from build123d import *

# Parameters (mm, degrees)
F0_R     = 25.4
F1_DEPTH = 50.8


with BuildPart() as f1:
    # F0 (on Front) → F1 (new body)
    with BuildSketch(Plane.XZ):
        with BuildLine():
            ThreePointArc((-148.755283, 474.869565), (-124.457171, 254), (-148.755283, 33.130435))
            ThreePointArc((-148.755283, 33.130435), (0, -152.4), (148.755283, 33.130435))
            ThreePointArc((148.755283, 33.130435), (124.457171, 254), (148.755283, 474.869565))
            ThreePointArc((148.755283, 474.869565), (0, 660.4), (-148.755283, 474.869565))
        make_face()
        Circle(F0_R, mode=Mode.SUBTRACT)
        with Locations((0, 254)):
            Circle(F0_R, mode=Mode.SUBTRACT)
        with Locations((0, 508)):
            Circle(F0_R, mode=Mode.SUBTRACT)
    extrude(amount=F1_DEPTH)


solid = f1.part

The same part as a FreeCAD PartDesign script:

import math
import FreeCAD as App
import Part
import Sketcher
from FreeCAD import Vector
Q = App.Units.Quantity

doc = App.newDocument("Part")
body = doc.addObject("PartDesign::Body", "Body")

sketch1 = body.newObject("Sketcher::SketchObject", "Sketch")
sketch1.AttachmentSupport = (doc.getObject("XZ_Plane"), [""])
sketch1.MapMode = "FlatFace"
sketch1.addGeometry(Part.ArcOfCircle(Part.Circle(Vector(-1140.457159, 254, 0), Vector(0, 0, 1), 1015.999988), math.radians(-12.555858), math.radians(12.555858)), False)
sketch1.addGeometry(Part.ArcOfCircle(Part.Circle(Vector(0, 0, 0), Vector(0, 0, 1), 152.4), math.radians(167.444142), math.radians(372.555858)), False)
sketch1.addGeometry(Part.ArcOfCircle(Part.Circle(Vector(1140.457159, 254, 0), Vector(0, 0, 1), 1015.999988), math.radians(167.444142), math.radians(192.555858)), False)
sketch1.addGeometry(Part.ArcOfCircle(Part.Circle(Vector(0, 508, 0), Vector(0, 0, 1), 152.4), math.radians(-12.555858), math.radians(192.555858)), False)
sketch1.addGeometry(Part.Circle(Vector(0, 0, 0), Vector(0, 0, 1), 25.4), False)
sketch1.addGeometry(Part.Circle(Vector(0, 254, 0), Vector(0, 0, 1), 25.4), False)
sketch1.addGeometry(Part.Circle(Vector(0, 508, 0), Vector(0, 0, 1), 25.4), False)
sketch1.addConstraint(Sketcher.Constraint("Tangent", 0, 1, 1, 1))
sketch1.addConstraint(Sketcher.Constraint("Tangent", 1, 2, 2, 2))
sketch1.addConstraint(Sketcher.Constraint("Tangent", 2, 1, 3, 1))
sketch1.addConstraint(Sketcher.Constraint("Tangent", 3, 2, 0, 2))
sketch1.addConstraint(Sketcher.Constraint("Coincident", 1, 3, -1, 1))
sketch1.addConstraint(Sketcher.Constraint("Coincident", 4, 3, -1, 1))
sketch1.addConstraint(Sketcher.Constraint("Coincident", 6, 3, 3, 3))
sketch1.addConstraint(Sketcher.Constraint("Equal", 0, 2))
sketch1.addConstraint(Sketcher.Constraint("Equal", 1, 3))
sketch1.addConstraint(Sketcher.Constraint("Equal", 4, 5))
sketch1.addConstraint(Sketcher.Constraint("Equal", 5, 6))
sketch1.addConstraint(Sketcher.Constraint("PointOnObject", 3, 3, -2))
sketch1.addConstraint(Sketcher.Constraint("PointOnObject", 5, 3, -2))
sketch1.addConstraint(Sketcher.Constraint("Horizontal", 2, 3, 5, 3))
sketch1.addConstraint(Sketcher.Constraint("Diameter", 4, Q("2 in")))
sketch1.addConstraint(Sketcher.Constraint("Radius", 1, Q("6 in")))
sketch1.addConstraint(Sketcher.Constraint("DistanceY", -1, 1, 0, 3, Q("10 in")))
sketch1.addConstraint(Sketcher.Constraint("Radius", 0, 1015.999988))
pad1 = body.newObject("PartDesign::Pad", "Pad")
pad1.Profile = sketch1
pad1.Length = Q("2 in")

doc.recompute()
